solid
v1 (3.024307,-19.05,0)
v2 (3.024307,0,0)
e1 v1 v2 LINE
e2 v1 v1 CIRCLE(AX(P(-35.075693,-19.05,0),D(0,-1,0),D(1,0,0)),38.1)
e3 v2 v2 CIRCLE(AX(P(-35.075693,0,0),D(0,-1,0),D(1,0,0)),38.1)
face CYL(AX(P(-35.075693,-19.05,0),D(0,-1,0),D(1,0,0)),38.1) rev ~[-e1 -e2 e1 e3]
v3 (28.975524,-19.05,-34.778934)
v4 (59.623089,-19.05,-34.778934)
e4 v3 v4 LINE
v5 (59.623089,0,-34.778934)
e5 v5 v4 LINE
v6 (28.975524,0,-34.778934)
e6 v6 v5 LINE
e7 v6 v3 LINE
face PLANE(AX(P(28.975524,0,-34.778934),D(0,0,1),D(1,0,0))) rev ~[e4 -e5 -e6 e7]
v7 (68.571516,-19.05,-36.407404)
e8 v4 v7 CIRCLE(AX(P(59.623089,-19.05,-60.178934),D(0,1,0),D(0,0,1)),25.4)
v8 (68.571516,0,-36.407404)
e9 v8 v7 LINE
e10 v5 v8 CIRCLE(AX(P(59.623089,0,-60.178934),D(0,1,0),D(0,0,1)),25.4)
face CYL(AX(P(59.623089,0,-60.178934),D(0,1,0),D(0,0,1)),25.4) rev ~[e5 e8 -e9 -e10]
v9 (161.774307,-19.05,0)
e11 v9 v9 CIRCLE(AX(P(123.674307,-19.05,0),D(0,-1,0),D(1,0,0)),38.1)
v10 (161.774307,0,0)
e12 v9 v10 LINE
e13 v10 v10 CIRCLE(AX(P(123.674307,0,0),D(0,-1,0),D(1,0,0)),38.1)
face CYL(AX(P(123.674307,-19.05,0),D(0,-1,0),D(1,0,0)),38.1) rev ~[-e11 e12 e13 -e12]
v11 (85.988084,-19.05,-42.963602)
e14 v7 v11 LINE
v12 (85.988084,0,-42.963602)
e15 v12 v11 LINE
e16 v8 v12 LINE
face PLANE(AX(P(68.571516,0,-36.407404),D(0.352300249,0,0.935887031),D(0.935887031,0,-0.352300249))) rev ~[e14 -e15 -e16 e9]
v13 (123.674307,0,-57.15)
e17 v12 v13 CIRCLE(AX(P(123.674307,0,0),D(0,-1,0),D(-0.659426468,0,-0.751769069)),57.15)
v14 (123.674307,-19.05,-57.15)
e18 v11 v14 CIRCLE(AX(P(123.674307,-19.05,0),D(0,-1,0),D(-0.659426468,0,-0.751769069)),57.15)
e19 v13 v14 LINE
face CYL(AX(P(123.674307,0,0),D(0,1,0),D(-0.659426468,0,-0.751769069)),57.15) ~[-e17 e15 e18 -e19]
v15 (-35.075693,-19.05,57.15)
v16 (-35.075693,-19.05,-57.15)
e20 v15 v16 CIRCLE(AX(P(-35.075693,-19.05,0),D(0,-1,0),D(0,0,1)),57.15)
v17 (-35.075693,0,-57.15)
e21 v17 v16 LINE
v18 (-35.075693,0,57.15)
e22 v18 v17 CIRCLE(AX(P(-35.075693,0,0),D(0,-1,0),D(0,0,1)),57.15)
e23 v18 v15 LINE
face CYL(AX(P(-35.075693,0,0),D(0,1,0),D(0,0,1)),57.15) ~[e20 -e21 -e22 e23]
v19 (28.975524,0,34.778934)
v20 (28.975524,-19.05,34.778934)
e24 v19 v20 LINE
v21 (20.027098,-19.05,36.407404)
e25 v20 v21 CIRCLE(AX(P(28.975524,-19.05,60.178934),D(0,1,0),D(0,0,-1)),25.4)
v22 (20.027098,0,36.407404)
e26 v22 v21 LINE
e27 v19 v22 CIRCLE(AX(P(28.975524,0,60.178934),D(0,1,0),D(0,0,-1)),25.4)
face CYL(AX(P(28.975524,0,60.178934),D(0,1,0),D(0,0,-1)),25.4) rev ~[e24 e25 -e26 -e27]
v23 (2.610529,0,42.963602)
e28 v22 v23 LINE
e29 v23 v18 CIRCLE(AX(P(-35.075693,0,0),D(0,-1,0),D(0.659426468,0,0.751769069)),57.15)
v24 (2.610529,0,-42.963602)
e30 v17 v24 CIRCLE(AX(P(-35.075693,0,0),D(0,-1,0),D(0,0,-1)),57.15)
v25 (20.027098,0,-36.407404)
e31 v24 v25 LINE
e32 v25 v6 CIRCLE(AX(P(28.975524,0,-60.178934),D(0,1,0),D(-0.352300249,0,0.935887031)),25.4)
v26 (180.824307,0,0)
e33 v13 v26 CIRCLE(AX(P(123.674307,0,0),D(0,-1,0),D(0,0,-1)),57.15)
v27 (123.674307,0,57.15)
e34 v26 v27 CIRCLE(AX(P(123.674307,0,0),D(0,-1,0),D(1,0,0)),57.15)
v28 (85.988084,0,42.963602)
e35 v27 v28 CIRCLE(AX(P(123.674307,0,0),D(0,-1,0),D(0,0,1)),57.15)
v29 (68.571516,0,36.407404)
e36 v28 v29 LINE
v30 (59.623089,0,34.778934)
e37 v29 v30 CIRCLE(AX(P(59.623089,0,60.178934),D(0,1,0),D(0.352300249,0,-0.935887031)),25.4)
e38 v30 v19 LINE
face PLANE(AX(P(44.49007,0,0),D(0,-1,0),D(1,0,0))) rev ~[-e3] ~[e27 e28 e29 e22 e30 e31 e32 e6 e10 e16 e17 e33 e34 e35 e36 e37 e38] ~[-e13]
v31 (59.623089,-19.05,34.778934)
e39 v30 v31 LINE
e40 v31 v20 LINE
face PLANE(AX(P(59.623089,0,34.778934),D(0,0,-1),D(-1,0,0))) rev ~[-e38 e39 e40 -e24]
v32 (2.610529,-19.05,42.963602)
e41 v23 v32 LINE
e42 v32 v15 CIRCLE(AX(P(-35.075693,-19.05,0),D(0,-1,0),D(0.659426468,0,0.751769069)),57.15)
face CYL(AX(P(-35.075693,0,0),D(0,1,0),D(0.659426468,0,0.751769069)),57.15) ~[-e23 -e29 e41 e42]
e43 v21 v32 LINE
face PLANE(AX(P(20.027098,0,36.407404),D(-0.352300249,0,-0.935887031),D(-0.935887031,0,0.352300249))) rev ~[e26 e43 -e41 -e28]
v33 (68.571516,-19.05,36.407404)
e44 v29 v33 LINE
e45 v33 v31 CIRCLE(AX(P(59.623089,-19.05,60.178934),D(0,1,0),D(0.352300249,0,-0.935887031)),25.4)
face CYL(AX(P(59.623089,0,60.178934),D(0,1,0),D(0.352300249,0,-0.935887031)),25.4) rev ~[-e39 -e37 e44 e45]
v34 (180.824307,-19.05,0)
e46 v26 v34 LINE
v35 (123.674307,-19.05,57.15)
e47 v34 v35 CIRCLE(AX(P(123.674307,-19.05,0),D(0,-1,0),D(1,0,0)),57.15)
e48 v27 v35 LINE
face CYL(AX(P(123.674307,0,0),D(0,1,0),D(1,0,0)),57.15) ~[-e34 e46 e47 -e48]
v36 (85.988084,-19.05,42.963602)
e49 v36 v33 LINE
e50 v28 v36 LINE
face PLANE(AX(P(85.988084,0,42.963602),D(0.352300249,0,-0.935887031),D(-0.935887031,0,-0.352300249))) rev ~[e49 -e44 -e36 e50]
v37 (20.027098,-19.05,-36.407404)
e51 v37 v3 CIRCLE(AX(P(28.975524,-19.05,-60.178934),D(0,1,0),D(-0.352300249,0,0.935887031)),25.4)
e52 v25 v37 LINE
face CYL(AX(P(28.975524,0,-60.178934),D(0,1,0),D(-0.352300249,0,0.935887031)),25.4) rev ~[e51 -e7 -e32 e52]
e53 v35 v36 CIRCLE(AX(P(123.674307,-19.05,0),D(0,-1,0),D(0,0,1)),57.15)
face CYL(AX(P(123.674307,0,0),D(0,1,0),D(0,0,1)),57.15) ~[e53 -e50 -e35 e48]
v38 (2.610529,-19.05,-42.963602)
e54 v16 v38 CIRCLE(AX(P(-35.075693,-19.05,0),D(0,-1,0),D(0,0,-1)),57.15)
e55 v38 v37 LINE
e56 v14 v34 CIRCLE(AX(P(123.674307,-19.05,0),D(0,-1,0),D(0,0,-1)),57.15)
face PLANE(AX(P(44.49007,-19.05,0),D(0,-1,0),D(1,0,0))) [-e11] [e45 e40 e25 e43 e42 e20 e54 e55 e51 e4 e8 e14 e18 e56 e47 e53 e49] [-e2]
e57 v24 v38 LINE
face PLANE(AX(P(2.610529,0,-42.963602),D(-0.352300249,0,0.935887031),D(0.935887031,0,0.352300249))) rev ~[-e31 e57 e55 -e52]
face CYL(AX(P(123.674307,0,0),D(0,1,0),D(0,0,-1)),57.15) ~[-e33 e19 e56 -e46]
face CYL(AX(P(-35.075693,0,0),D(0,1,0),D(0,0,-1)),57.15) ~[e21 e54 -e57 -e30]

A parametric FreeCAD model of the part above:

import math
import FreeCAD as App
import Part
import Sketcher
from FreeCAD import Vector
Q = App.Units.Quantity

doc = App.newDocument("Part")
params = doc.addObject("Spreadsheet::Sheet", "Params")
for row, (alias, value) in enumerate([
    ("sketch1_radius", "1 in"),
    ("sketch1_radius2", "2.25 in"),
    ("pad1_length", "0.75 in"),
    ("sketch2_diameter", "3 in"),
    ("pocket1_length", "1 in"),
], start=1):
    params.set(f"A{row}", alias)
    params.set(f"B{row}", "=" + value)
    params.setAlias(f"B{row}", alias)

body = doc.addObject("PartDesign::Body", "Body")

sketch1 = body.newObject("Sketcher::SketchObject", "Sketch")
sketch1.AttachmentSupport = (doc.getObject("XZ_Plane"), [""])
sketch1.MapMode = "FlatFace"
sketch1.addGeometry(Part.LineSegment(Vector(20.027098, 36.407404, 0), Vector(2.610529, 42.963602, 0)), False)
sketch1.addGeometry(Part.ArcOfCircle(Part.Circle(Vector(-35.075693, 0, 0), Vector(0, 0, 1), 57.15), math.radians(48.743853), math.radians(90)), False)
sketch1.addGeometry(Part.ArcOfCircle(Part.Circle(Vector(-35.075693, 0, 0), Vector(0, 0, 1), 57.15), math.radians(90), math.radians(270)), False)
sketch1.addGeometry(Part.ArcOfCircle(Part.Circle(Vector(-35.075693, 0, 0), Vector(0, 0, 1), 57.15), math.radians(-90), math.radians(-48.743853)), False)
sketch1.addGeometry(Part.LineSegment(Vector(2.610529, -42.963602, 0), Vector(20.027098, -36.407404, 0)), False)
sketch1.addGeometry(Part.ArcOfCircle(Part.Circle(Vector(28.975524, -60.178934, 0), Vector(0, 0, 1), 25.4), math.radians(90), math.radians(110.628073)), False)
sketch1.addGeometry(Part.LineSegment(Vector(28.975524, -34.778934, 0), Vector(59.623089, -34.778934, 0)), False)
sketch1.addGeometry(Part.ArcOfCircle(Part.Circle(Vector(59.623089, -60.178934, 0), Vector(0, 0, 1), 25.4), math.radians(69.371927), math.radians(90)), False)
sketch1.addGeometry(Part.LineSegment(Vector(68.571516, -36.407404, 0), Vector(85.988084, -42.963602, 0)), False)
sketch1.addGeometry(Part.ArcOfCircle(Part.Circle(Vector(123.674307, 0, 0), Vector(0, 0, 1), 57.15), math.radians(-131.256147), math.radians(-90)), False)
sketch1.addGeometry(Part.ArcOfCircle(Part.Circle(Vector(123.674307, 0, 0), Vector(0, 0, 1), 57.15), math.radians(-90), math.radians(0)), False)
sketch1.addGeometry(Part.ArcOfCircle(Part.Circle(Vector(123.674307, 0, 0), Vector(0, 0, 1), 57.15), math.radians(0), math.radians(90)), False)
sketch1.addGeometry(Part.ArcOfCircle(Part.Circle(Vector(123.674307, 0, 0), Vector(0, 0, 1), 57.15), math.radians(90), math.radians(131.256147)), False)
sketch1.addGeometry(Part.LineSegment(Vector(85.988084, 42.963602, 0), Vector(68.571516, 36.407404, 0)), False)
sketch1.addGeometry(Part.ArcOfCircle(Part.Circle(Vector(59.623089, 60.178934, 0), Vector(0, 0, 1), 25.4), math.radians(-90), math.radians(-69.371927)), False)
sketch1.addGeometry(Part.LineSegment(Vector(59.623089, 34.778934, 0), Vector(28.975524, 34.778934, 0)), False)
sketch1.addGeometry(Part.ArcOfCircle(Part.Circle(Vector(28.975524, 60.178934, 0), Vector(0, 0, 1), 25.4), math.radians(-110.628073), math.radians(-90)), False)
sketch1.addConstraint(Sketcher.Constraint("Coincident", 0, 2, 1, 1))
sketch1.addConstraint(Sketcher.Constraint("Tangent", 1, 2, 2, 1))
sketch1.addConstraint(Sketcher.Constraint("Tangent", 2, 2, 3, 1))
sketch1.addConstraint(Sketcher.Constraint("Coincident", 3, 2, 4, 1))
sketch1.addConstraint(Sketcher.Constraint("Tangent", 4, 2, 5, 2))
sketch1.addConstraint(Sketcher.Constraint("Tangent", 5, 1, 6, 1))
sketch1.addConstraint(Sketcher.Constraint("Tangent", 6, 2, 7, 2))
sketch1.addConstraint(Sketcher.Constraint("Tangent", 7, 1, 8, 1))
sketch1.addConstraint(Sketcher.Constraint("Coincident", 8, 2, 9, 1))
sketch1.addConstraint(Sketcher.Constraint("Tangent", 9, 2, 10, 1))
sketch1.addConstraint(Sketcher.Constraint("Tangent", 10, 2, 11, 1))
sketch1.addConstraint(Sketcher.Constraint("Tangent", 11, 2, 12, 1))
sketch1.addConstraint(Sketcher.Constraint("Coincident", 12, 2, 13, 1))
sketch1.addConstraint(Sketcher.Constraint("Tangent", 13, 2, 14, 2))
sketch1.addConstraint(Sketcher.Constraint("Tangent", 14, 1, 15, 1))
sketch1.addConstraint(Sketcher.Constraint("Tangent", 15, 2, 16, 2))
sketch1.addConstraint(Sketcher.Constraint("Tangent", 16, 1, 0, 1))
sketch1.addConstraint(Sketcher.Constraint("Horizontal", 6))
sketch1.addConstraint(Sketcher.Constraint("Horizontal", 15))
sketch1.addConstraint(Sketcher.Constraint("Coincident", 11, 3, 9, 3))
sketch1.addConstraint(Sketcher.Constraint("Equal", 1, 2))
sketch1.addConstraint(Sketcher.Constraint("Equal", 2, 3))
sketch1.addConstraint(Sketcher.Constraint("Equal", 5, 7))
sketch1.addConstraint(Sketcher.Constraint("Equal", 3, 9))
sketch1.addConstraint(Sketcher.Constraint("Equal", 11, 12))
sketch1.addConstraint(Sketcher.Constraint("Equal", 7, 14))
sketch1.addConstraint(Sketcher.Constraint("Equal", 14, 16))
sketch1.addConstraint(Sketcher.Constraint("Symmetric", 7, 3, 14, 3, -1))
sketch1.addConstraint(Sketcher.Constraint("Symmetric", 1, 2, 2, 2, -1))
sketch1.addConstraint(Sketcher.Constraint("Symmetric", 9, 2, 11, 2, -1))
sketch1.addConstraint(Sketcher.Constraint("Symmetric", 4, 2, 16, 1, -1))
sketch1.addConstraint(Sketcher.Constraint("PointOnObject", 10, 2, -1))
sketch1.addConstraint(Sketcher.Constraint("Parallel", 0, 8))
sketch1.addConstraint(Sketcher.Constraint("Parallel", 4, 13))
sketch1.addConstraint(Sketcher.Constraint("Horizontal", 3, 2, 8, 2))
sketch1.addConstraint(Sketcher.Constraint("Vertical", 3, 3, 1, 2))
sketch1.addConstraint(Sketcher.Constraint("Vertical", 12, 3, 9, 2))
sketch1.addConstraint(Sketcher.Constraint("Radius", 5, Q("1 in")))
sketch1.addConstraint(Sketcher.Constraint("Radius", 1, Q("2.25 in")))
sketch1.addConstraint(Sketcher.Constraint("DistanceX", 1, 3, 9, 3, Q("6.25 in")))
sketch1.addConstraint(Sketcher.Constraint("DistanceY", 3, 2, 4, 2, 6.556199))
sketch1.addConstraint(Sketcher.Constraint("Distance", 0, 18.609691))
sketch1.addConstraint(Sketcher.Constraint("DistanceX", 6, 1, 6, 2, 30.647566))
sketch1.addConstraint(Sketcher.Constraint("DistanceX", -1, 1, 7, 3, 59.623089))
sketch1.setExpression("Constraints[37]", "Params.sketch1_radius")
sketch1.setExpression("Constraints[38]", "Params.sketch1_radius2")
pad1 = body.newObject("PartDesign::Pad", "Pad")
pad1.Profile = sketch1
pad1.setExpression("Length", "Params.pad1_length")

sketch2 = body.newObject("Sketcher::SketchObject", "Sketch001")
sketch2.AttachmentSupport = (doc.getObject("XZ_Plane"), [""])
sketch2.MapMode = "FlatFace"
sketch2.AttachmentOffset = App.Placement(Vector(0, 0, 0.75 * 25.4), App.Rotation())
sketch2.addGeometry(Part.Circle(Vector(-35.075693, 0, 0), Vector(0, 0, 1), 38.1), False)
sketch2.addGeometry(Part.Circle(Vector(123.674307, 0, 0), Vector(0, 0, 1), 38.1), False)
sketch2.addConstraint(Sketcher.Constraint("Equal", 0, 1))
sketch2.addConstraint(Sketcher.Constraint("PointOnObject", 0, 3, -1))
sketch2.addConstraint(Sketcher.Constraint("PointOnObject", 1, 3, -1))
sketch2.addConstraint(Sketcher.Constraint("Diameter", 0, Q("3 in")))
sketch2.addConstraint(Sketcher.Constraint("DistanceX", 0, 3, 1, 3, Q("6.25 in")))
sketch2.addConstraint(Sketcher.Constraint("DistanceX", 0, 3, -1, 1, 35.075693))
sketch2.setExpression("Constraints[3]", "Params.sketch2_diameter")
pocket1 = body.newObject("PartDesign::Pocket", "Pocket")
pocket1.Profile = sketch2
pocket1.setExpression("Length", "Params.pocket1_length")

doc.recompute()
